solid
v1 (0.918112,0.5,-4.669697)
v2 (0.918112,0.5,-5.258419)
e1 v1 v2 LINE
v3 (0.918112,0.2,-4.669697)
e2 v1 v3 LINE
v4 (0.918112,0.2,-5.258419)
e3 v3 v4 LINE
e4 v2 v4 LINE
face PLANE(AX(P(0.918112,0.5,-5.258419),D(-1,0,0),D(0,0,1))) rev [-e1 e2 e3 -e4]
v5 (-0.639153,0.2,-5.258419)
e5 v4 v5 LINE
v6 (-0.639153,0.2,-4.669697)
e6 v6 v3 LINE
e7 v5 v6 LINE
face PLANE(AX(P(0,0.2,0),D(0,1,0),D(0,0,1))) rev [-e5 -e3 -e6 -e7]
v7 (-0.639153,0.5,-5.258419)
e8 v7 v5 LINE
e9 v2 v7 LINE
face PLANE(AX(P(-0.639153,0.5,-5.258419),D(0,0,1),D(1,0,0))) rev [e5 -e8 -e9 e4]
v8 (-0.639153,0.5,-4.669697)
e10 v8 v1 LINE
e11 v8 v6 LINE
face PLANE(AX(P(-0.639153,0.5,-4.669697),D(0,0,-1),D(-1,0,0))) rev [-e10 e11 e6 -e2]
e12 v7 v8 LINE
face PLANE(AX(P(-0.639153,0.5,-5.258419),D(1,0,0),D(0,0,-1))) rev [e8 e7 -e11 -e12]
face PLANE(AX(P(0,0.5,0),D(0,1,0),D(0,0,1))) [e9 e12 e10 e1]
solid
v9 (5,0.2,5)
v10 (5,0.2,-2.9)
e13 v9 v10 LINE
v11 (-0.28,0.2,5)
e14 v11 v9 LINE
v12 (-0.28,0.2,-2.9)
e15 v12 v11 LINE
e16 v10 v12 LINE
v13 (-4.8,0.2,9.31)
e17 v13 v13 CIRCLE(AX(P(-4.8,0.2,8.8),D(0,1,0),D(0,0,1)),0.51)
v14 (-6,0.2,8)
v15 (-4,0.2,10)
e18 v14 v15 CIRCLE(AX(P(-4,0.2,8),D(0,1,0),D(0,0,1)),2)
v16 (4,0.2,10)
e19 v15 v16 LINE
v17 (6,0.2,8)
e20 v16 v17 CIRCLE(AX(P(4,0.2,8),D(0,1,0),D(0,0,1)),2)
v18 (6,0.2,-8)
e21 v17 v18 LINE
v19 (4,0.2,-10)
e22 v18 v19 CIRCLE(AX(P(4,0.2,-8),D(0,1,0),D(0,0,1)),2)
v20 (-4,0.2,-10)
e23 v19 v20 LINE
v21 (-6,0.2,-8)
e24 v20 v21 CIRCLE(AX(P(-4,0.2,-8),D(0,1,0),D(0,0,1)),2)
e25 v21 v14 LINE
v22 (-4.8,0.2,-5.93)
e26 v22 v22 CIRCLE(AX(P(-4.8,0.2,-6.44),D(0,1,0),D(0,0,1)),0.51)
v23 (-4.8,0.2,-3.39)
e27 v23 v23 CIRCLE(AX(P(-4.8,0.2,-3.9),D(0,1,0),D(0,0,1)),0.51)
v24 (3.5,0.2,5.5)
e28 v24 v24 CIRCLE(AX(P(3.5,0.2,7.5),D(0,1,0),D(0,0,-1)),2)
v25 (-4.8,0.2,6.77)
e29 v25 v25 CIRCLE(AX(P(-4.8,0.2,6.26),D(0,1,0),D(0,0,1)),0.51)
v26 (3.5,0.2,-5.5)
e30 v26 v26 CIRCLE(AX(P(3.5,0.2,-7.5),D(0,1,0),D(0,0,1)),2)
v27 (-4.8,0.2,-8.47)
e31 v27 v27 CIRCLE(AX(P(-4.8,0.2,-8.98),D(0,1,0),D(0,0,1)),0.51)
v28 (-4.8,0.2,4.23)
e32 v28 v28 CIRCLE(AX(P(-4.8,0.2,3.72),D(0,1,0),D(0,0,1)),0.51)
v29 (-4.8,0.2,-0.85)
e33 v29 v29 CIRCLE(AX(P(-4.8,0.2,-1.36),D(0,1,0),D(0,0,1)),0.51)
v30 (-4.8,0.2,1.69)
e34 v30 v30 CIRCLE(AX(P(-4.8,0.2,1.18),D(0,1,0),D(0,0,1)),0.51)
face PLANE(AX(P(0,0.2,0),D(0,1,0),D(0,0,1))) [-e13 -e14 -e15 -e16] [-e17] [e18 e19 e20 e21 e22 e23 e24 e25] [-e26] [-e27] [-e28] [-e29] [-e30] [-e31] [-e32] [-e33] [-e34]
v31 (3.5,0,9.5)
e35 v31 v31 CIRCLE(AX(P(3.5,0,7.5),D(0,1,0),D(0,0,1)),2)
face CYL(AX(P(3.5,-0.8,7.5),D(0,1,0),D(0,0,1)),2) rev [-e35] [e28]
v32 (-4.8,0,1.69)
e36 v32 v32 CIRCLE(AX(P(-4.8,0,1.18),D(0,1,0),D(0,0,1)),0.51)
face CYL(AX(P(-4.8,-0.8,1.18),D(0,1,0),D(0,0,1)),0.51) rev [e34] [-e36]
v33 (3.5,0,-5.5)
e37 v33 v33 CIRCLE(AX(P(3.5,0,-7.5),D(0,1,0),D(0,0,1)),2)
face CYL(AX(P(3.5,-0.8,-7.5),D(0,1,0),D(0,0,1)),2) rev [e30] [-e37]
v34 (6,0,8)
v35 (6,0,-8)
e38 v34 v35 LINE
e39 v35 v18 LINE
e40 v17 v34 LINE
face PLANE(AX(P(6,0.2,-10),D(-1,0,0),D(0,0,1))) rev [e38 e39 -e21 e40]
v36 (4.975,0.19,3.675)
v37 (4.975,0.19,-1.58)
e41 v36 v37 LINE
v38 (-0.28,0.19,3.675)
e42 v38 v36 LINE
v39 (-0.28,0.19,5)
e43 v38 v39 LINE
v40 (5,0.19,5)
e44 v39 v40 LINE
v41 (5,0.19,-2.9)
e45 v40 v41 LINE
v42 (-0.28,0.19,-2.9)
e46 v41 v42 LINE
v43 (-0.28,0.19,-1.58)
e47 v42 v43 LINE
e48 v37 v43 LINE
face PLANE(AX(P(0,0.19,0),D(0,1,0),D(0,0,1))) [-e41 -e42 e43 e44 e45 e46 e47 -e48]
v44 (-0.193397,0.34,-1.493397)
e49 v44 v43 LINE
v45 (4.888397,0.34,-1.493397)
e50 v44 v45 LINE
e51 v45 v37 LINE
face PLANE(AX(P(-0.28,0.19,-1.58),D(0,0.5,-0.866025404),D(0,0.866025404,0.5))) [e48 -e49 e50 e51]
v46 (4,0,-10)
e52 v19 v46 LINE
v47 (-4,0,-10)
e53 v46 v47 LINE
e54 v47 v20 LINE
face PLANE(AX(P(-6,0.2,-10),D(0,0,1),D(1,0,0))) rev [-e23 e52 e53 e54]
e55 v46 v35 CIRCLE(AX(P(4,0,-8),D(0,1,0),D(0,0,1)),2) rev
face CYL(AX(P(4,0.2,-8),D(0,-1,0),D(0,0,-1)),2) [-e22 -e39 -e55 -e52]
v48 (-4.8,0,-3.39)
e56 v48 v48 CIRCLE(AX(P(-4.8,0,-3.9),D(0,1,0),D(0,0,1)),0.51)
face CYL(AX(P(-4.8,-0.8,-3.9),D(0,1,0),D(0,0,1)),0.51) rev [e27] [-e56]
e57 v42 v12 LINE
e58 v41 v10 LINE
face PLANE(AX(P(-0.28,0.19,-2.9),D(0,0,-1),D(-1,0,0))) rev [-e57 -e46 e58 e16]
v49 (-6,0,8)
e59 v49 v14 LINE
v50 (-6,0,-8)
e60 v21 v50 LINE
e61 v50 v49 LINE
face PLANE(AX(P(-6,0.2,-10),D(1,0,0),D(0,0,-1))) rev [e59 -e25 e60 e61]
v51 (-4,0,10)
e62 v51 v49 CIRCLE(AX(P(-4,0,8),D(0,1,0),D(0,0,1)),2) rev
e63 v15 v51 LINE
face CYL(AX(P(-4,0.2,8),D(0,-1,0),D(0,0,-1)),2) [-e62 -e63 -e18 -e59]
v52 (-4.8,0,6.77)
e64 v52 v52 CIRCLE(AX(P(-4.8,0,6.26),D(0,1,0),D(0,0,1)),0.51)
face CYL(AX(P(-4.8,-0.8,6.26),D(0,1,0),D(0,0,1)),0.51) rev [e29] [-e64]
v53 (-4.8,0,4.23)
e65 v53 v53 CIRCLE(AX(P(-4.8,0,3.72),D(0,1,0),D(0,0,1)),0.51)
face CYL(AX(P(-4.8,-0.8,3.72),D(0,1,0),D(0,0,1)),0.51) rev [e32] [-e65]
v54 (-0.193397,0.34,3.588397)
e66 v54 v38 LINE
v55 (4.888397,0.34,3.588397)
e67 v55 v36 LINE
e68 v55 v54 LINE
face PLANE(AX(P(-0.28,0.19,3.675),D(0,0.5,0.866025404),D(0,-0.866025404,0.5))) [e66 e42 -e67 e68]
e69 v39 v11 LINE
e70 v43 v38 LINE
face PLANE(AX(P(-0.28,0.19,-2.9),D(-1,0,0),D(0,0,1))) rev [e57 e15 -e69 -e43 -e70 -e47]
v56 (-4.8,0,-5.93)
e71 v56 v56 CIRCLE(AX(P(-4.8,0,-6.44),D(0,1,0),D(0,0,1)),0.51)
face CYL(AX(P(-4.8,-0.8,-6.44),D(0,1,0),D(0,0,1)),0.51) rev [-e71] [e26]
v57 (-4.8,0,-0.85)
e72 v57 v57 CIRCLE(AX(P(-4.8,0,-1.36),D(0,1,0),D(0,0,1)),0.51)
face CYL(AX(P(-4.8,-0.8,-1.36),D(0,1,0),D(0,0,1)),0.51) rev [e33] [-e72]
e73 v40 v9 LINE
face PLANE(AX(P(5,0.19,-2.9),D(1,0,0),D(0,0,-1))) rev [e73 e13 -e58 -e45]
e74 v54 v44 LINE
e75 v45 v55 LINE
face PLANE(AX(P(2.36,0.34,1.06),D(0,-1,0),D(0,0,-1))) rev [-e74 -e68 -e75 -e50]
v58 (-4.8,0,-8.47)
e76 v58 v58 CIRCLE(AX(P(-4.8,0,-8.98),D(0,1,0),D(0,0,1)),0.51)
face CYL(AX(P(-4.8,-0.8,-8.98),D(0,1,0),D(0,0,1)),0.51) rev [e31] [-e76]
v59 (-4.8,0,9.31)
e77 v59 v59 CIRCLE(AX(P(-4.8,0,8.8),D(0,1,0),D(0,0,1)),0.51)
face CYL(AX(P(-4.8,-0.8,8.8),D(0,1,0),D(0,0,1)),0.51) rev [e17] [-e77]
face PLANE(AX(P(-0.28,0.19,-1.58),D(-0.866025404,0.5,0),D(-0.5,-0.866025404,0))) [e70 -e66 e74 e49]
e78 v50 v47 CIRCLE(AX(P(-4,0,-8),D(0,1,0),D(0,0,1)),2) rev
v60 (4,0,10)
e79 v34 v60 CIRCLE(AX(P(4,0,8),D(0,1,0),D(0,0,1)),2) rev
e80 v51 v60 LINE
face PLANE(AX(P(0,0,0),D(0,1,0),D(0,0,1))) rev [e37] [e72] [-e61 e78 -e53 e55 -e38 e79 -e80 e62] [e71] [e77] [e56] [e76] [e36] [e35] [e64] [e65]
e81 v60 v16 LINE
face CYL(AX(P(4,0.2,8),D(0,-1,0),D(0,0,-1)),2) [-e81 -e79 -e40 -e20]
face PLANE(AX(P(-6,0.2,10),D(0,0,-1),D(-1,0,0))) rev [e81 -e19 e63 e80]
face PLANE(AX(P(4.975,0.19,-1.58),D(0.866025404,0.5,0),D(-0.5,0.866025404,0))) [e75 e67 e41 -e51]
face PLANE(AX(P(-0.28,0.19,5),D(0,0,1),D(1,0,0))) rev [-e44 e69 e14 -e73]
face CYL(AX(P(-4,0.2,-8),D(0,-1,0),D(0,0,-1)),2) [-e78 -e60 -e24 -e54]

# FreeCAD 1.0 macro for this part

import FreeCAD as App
import Part
import Sketcher
from FreeCAD import Vector
Q = App.Units.Quantity


def edges_at(feature, points):
    """Names of the edges that pass closest to the given points."""
    edges = feature.Shape.Edges
    near = lambda p: min(range(len(edges)), key=lambda i: edges[i].distToShape(Part.Vertex(*p))[0])
    return sorted({f"Edge{near(p) + 1}" for p in points})


def add_polygon(sketch, points):
    """Adds a closed chain of lines whose ends are joined by coincident constraints."""
    first, n = sketch.GeometryCount, len(points)
    for a, b in zip(points, points[1:] + points[:1]):
        sketch.addGeometry(Part.LineSegment(App.Vector(*a, 0), App.Vector(*b, 0)), False)
    for i in range(n):
        sketch.addConstraint(Sketcher.Constraint("Coincident", first + i, 2, first + (i + 1) % n, 1))

doc = App.newDocument("Part")
body = doc.addObject("PartDesign::Body", "Body")

# Sketch on XZ plane
sketch1 = body.newObject("Sketcher::SketchObject", "Sketch")
sketch1.AttachmentSupport = (doc.getObject("XZ_Plane"), [""])
sketch1.MapMode = "FlatFace"
add_polygon(sketch1, [(-6, -10), (-6, 10), (6, 10), (6, -10)])  # lines 0-3
sketch1.addConstraint([
    Sketcher.Constraint("Vertical", 0),
    Sketcher.Constraint("Horizontal", 1),
    Sketcher.Constraint("Vertical", 2),
    Sketcher.Constraint("Horizontal", 3),
    Sketcher.Constraint("Symmetric", 0, 2, 2, 2, -1, 1),
    Sketcher.Constraint("DistanceX", 1, 1, 1, 2, Q("12 mm")),
    Sketcher.Constraint("DistanceY", 0, 1, 0, 2, Q("20 mm")),
])
pad1 = body.newObject("PartDesign::Pad", "Pad")
pad1.Profile = sketch1
pad1.Length = 0.2
pad1.Reversed = True

# Sketch on XZ plane
sketch2 = body.newObject("Sketcher::SketchObject", "Sketch001")
sketch2.AttachmentSupport = (doc.getObject("XZ_Plane"), [""])
sketch2.MapMode = "FlatFace"
sketch2.AttachmentOffset = App.Placement(Vector(0, 0, -0.2), App.Rotation())
sketch2.addGeometry([
    Part.Circle(Vector(-4.8, 8.8, 0), Vector(0, 0, 1), 0.5),  # 0
    Part.Circle(Vector(-4.8, 6.3, 0), Vector(0, 0, 1), 0.5),  # 1
    Part.Circle(Vector(-4.8, 3.7, 0), Vector(0, 0, 1), 0.5),  # 2
    Part.Circle(Vector(-4.8, 1.2, 0), Vector(0, 0, 1), 0.5),  # 3
    Part.Circle(Vector(-4.8, -1.4, 0), Vector(0, 0, 1), 0.5),  # 4
    Part.Circle(Vector(-4.8, -3.9, 0), Vector(0, 0, 1), 0.5),  # 5
    Part.Circle(Vector(-4.8, -6.4, 0), Vector(0, 0, 1), 0.5),  # 6
    Part.Circle(Vector(-4.8, -9, 0), Vector(0, 0, 1), 0.5),  # 7
], False)
sketch2.addConstraint([
    Sketcher.Constraint("Equal", 0, 1),
    Sketcher.Constraint("Equal", 1, 2),
    Sketcher.Constraint("Equal", 2, 3),
    Sketcher.Constraint("Equal", 3, 4),
    Sketcher.Constraint("Equal", 4, 5),
    Sketcher.Constraint("Equal", 5, 6),
    Sketcher.Constraint("Equal", 6, 7),
    Sketcher.Constraint("Vertical", 0, 3, 1, 3),
    Sketcher.Constraint("Vertical", 1, 3, 2, 3),
    Sketcher.Constraint("Vertical", 2, 3, 3, 3),
    Sketcher.Constraint("Vertical", 3, 3, 4, 3),
    Sketcher.Constraint("Vertical", 4, 3, 5, 3),
    Sketcher.Constraint("Vertical", 5, 3, 6, 3),
    Sketcher.Constraint("Vertical", 6, 3, 7, 3),
    Sketcher.Constraint("Diameter", 0, Q("1.02 mm")),
    Sketcher.Constraint("DistanceX", 0, 3, -1, 1, Q("4.8 mm")),
    Sketcher.Constraint("DistanceY", -1, 1, 0, 3, Q("8.8 mm")),
    Sketcher.Constraint("DistanceY", 5, 3, -1, 1, Q("3.9 mm")),
    Sketcher.Constraint("DistanceY", 6, 3, 1, 3, Q("12.7 mm")),
    Sketcher.Constraint("DistanceY", 7, 3, 2, 3, Q("12.7 mm")),
    Sketcher.Constraint("DistanceY", -1, 1, 1, 3, Q("6.26 mm")),
    Sketcher.Constraint("DistanceY", -1, 1, 2, 3, Q("3.72 mm")),
    Sketcher.Constraint("DistanceY", -1, 1, 3, 3, Q("1.18 mm")),
    Sketcher.Constraint("DistanceY", 4, 3, -1, 1, Q("1.36 mm")),
])
pocket1 = body.newObject("PartDesign::Pocket", "Pocket")
pocket1.Profile = sketch2
pocket1.Length = 1
pocket1.Reversed = True

# Sketch on XZ plane
sketch3 = body.newObject("Sketcher::SketchObject", "Sketch002")
sketch3.AttachmentSupport = (doc.getObject("XZ_Plane"), [""])
sketch3.MapMode = "FlatFace"
sketch3.AttachmentOffset = App.Placement(Vector(0, 0, -0.2), App.Rotation())
sketch3.addGeometry([
    Part.Circle(Vector(3.5, -7.5, 0), Vector(0, 0, 1), 2),
    Part.Circle(Vector(3.5, 7.5, 0), Vector(0, 0, 1), 2),
], False)
sketch3.addConstraint([
    Sketcher.Constraint("Equal", 0, 1),
    Sketcher.Constraint("Symmetric", 0, 3, 1, 3, -1),
    Sketcher.Constraint("Diameter", 0, Q("4 mm")),
    Sketcher.Constraint("DistanceY", 0, 3, 1, 3, Q("15 mm")),
    Sketcher.Constraint("DistanceX", -1, 1, 0, 3, Q("3.5 mm")),
])
pocket2 = body.newObject("PartDesign::Pocket", "Pocket001")
pocket2.Profile = sketch3
pocket2.Length = 1
pocket2.Reversed = True

# Sketch on XZ plane
sketch4 = body.newObject("Sketcher::SketchObject", "Sketch003")
sketch4.AttachmentSupport = (doc.getObject("XZ_Plane"), [""])
sketch4.MapMode = "FlatFace"
sketch4.AttachmentOffset = App.Placement(Vector(0, 0, -0.2), App.Rotation())
add_polygon(sketch4, [(0, -3), (0, 5), (5, 5), (5, -3)])  # lines 0-3
sketch4.addConstraint([
    Sketcher.Constraint("Vertical", 0),
    Sketcher.Constraint("Horizontal", 1),
    Sketcher.Constraint("Vertical", 2),
    Sketcher.Constraint("Horizontal", 3),
    Sketcher.Constraint("DistanceY", 0, 1, 0, 2, Q("7.9 mm")),
    Sketcher.Constraint("DistanceY", -1, 1, 0, 2, Q("5 mm")),
    Sketcher.Constraint("DistanceX", -1, 1, 1, 2, Q("5 mm")),
    Sketcher.Constraint("DistanceX", 1, 1, 1, 2, Q("5.28 mm")),
])
pocket3 = body.newObject("PartDesign::Pocket", "Pocket002")
pocket3.Profile = sketch4
pocket3.Length = 0.01
pocket3.Reversed = True
doc.recompute()

fillet = body.newObject("PartDesign::Fillet", "Fillet")
fillet.Base = (pocket3, edges_at(pocket3, [
    (6, 0.1, 10),
    (-6, 0.1, 10),
    (-6, 0.1, -10),
    (6, 0.1, -10),
]))
fillet.Radius = 2

# Sketch on XZ plane
sketch5 = body.newObject("Sketcher::SketchObject", "Sketch004")
sketch5.AttachmentSupport = (doc.getObject("XZ_Plane"), [""])
sketch5.MapMode = "FlatFace"
sketch5.AttachmentOffset = App.Placement(Vector(0, 0, -0.19), App.Rotation())
add_polygon(sketch5, [(0, -2), (0, 4), (5, 4), (5, -2)])  # lines 0-3
sketch5.addConstraint([
    Sketcher.Constraint("Vertical", 0),
    Sketcher.Constraint("Horizontal", 1),
    Sketcher.Constraint("Vertical", 2),
    Sketcher.Constraint("Horizontal", 3),
    Sketcher.Constraint("Equal", 3, 0),
    Sketcher.Constraint("DistanceX", 1, 1, 1, 2, Q("5.255 mm")),
    Sketcher.Constraint("DistanceX", 0, 2, -1, 1, Q("0.28 mm")),
    Sketcher.Constraint("DistanceY", 2, 2, -1, 1, Q("1.58 mm")),
])
pad2 = body.newObject("PartDesign::Pad", "Pad001")
pad2.Profile = sketch5
pad2.Length = 0.15
pad2.Reversed = True
pad2.TaperAngle = -30
body2 = doc.addObject("PartDesign::Body", "Body001")

# Sketch on XZ plane
sketch6 = body2.newObject("Sketcher::SketchObject", "Sketch005")
sketch6.AttachmentSupport = (doc.getObject("XZ_Plane001"), [""])
sketch6.MapMode = "FlatFace"
sketch6.AttachmentOffset = App.Placement(Vector(0, 0, -0.2), App.Rotation())
add_polygon(sketch6, [(-0.6, -5.3), (-0.6, -4.7), (0.9, -4.7), (0.9, -5.3)])  # lines 0-3
sketch6.addConstraint([
    Sketcher.Constraint("Vertical", 0),
    Sketcher.Constraint("Horizontal", 1),
    Sketcher.Constraint("Vertical", 2),
    Sketcher.Constraint("Horizontal", 3),
    Sketcher.Constraint("DistanceX", 1, 1, 1, 2, Q("1.557265 mm")),
    Sketcher.Constraint("DistanceY", 0, 1, 0, 2, Q("0.588722 mm")),
    Sketcher.Constraint("DistanceY", 2, 2, -1, 1, Q("5.258419 mm")),
    Sketcher.Constraint("DistanceX", 0, 2, -1, 1, Q("0.639153 mm")),
])
pad3 = body2.newObject("PartDesign::Pad", "Pad002")
pad3.Profile = sketch6
pad3.Length = 0.3
pad3.Reversed = True

doc.recompute()
